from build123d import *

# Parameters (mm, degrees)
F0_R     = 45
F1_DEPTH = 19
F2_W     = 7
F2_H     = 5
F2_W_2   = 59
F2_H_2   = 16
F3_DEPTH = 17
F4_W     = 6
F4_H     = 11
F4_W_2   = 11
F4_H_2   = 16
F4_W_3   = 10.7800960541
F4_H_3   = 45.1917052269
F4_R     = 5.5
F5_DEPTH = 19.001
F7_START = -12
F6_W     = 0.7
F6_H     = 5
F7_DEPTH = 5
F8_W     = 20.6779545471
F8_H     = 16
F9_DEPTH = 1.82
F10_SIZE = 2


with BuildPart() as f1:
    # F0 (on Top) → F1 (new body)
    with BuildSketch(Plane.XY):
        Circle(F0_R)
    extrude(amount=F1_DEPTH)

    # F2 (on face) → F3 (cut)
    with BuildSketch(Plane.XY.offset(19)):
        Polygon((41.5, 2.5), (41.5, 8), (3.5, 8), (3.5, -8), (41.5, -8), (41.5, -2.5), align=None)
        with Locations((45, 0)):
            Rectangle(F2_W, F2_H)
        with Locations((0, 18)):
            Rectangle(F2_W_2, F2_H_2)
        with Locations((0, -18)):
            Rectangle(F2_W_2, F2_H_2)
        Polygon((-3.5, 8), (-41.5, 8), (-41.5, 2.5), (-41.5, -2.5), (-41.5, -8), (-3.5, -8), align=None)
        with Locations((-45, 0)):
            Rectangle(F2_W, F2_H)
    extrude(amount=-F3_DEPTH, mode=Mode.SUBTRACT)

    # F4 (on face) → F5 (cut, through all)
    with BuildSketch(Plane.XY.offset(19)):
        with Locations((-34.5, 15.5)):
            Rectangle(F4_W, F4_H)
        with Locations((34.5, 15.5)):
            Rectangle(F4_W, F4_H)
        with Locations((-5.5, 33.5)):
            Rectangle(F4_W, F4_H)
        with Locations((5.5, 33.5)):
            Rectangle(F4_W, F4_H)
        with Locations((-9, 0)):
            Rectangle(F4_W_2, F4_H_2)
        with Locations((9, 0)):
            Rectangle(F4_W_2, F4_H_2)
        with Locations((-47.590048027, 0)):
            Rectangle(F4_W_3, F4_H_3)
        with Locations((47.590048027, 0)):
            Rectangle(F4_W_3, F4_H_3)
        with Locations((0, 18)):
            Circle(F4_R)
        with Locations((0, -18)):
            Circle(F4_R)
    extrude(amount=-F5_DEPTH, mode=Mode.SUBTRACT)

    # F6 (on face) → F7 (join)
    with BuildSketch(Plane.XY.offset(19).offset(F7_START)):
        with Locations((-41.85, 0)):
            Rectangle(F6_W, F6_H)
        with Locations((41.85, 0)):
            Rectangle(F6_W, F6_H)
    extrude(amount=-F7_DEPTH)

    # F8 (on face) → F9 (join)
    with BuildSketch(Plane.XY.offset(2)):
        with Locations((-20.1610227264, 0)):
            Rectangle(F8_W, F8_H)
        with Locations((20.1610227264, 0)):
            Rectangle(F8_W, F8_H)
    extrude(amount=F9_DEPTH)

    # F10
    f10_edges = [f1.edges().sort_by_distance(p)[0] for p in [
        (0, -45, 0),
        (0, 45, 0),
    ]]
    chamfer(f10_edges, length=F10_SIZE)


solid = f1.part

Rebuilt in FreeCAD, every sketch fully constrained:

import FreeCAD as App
import Part
import Sketcher
from FreeCAD import Vector


def edges_at(feature, points):
    """Names of the edges that pass closest to the given points."""
    edges = feature.Shape.Edges
    near = lambda p: min(range(len(edges)), key=lambda i: edges[i].distToShape(Part.Vertex(*p))[0])
    return sorted({f"Edge{near(p) + 1}" for p in points})


def add_polygon(sketch, points):
    """Adds a closed chain of lines whose ends are joined by coincident constraints."""
    first, n = sketch.GeometryCount, len(points)
    for a, b in zip(points, points[1:] + points[:1]):
        sketch.addGeometry(Part.LineSegment(App.Vector(*a, 0), App.Vector(*b, 0)), False)
    for i in range(n):
        sketch.addConstraint(Sketcher.Constraint("Coincident", first + i, 2, first + (i + 1) % n, 1))

doc = App.newDocument("Part")
body = doc.addObject("PartDesign::Body", "Body")

# Sketch on XY plane
sketch1 = doc.addObject("Sketcher::SketchObject", "Sketch")
body.addObject(sketch1)
sketch1.AttachmentSupport = (doc.XY_Plane, [""])
sketch1.MapMode = "FlatFace"
sketch1.addGeometry(Part.Circle(Vector(0, 0, 0), Vector(0, 0, 1), 45), False)
sketch1.addConstraint(Sketcher.Constraint("Coincident", 0, 3, -1, 1))
sketch1.addConstraint(Sketcher.Constraint("Diameter", 0, 90.0))
pad1 = doc.addObject("PartDesign::Pad", "Pad")
body.addObject(pad1)
pad1.Profile = sketch1
pad1.Length = 19

# Sketch on XY plane
sketch2 = doc.addObject("Sketcher::SketchObject", "Sketch001")
body.addObject(sketch2)
sketch2.AttachmentSupport = (doc.XY_Plane, [""])
sketch2.MapMode = "FlatFace"
sketch2.AttachmentOffset = App.Placement(Vector(0, 0, 19), App.Rotation())
add_polygon(sketch2, [(41.5, 8), (3.5, 8), (3.5, -8), (41.5, -8), (41.5, -2.5), (48.5, -2.5), (48.5, 2.5), (41.5, 2.5)])  # lines 0-7
add_polygon(sketch2, [(-29.5, 26), (-29.5, 10), (29.5, 10), (29.5, 26)])  # lines 8-11
add_polygon(sketch2, [(-29.5, -10), (-29.5, -26), (29.5, -26), (29.5, -10)])  # lines 12-15
add_polygon(sketch2, [(-3.5, 8), (-41.5, 8), (-41.5, 2.5), (-48.5, 2.5), (-48.5, -2.5), (-41.5, -2.5), (-41.5, -8), (-3.5, -8)])  # lines 16-23
sketch2.addConstraint(Sketcher.Constraint("Horizontal", 0))
sketch2.addConstraint(Sketcher.Constraint("Vertical", 1))
sketch2.addConstraint(Sketcher.Constraint("Horizontal", 2))
sketch2.addConstraint(Sketcher.Constraint("Vertical", 3))
sketch2.addConstraint(Sketcher.Constraint("Horizontal", 4))
sketch2.addConstraint(Sketcher.Constraint("Vertical", 5))
sketch2.addConstraint(Sketcher.Constraint("Horizontal", 6))
sketch2.addConstraint(Sketcher.Constraint("Vertical", 7))
sketch2.addConstraint(Sketcher.Constraint("Vertical", 8))
sketch2.addConstraint(Sketcher.Constraint("Horizontal", 9))
sketch2.addConstraint(Sketcher.Constraint("Vertical", 10))
sketch2.addConstraint(Sketcher.Constraint("Horizontal", 11))
sketch2.addConstraint(Sketcher.Constraint("Vertical", 12))
sketch2.addConstraint(Sketcher.Constraint("Horizontal", 13))
sketch2.addConstraint(Sketcher.Constraint("Vertical", 14))
sketch2.addConstraint(Sketcher.Constraint("Horizontal", 15))
sketch2.addConstraint(Sketcher.Constraint("Horizontal", 16))
sketch2.addConstraint(Sketcher.Constraint("Vertical", 17))
sketch2.addConstraint(Sketcher.Constraint("Horizontal", 18))
sketch2.addConstraint(Sketcher.Constraint("Vertical", 19))
sketch2.addConstraint(Sketcher.Constraint("Horizontal", 20))
sketch2.addConstraint(Sketcher.Constraint("Vertical", 21))
sketch2.addConstraint(Sketcher.Constraint("Horizontal", 22))
sketch2.addConstraint(Sketcher.Constraint("Vertical", 23))
sketch2.addConstraint(Sketcher.Constraint("Symmetric", 10, 2, 12, 2, -1, 1))
sketch2.addConstraint(Sketcher.Constraint("Symmetric", 8, 2, 14, 2, -1, 1))
sketch2.addConstraint(Sketcher.Constraint("Symmetric", 2, 2, 16, 2, -1, 1))
sketch2.addConstraint(Sketcher.Constraint("Symmetric", 4, 2, 18, 2, -1, 1))
sketch2.addConstraint(Sketcher.Constraint("Symmetric", 6, 2, 20, 2, -1, 1))
sketch2.addConstraint(Sketcher.Constraint("Symmetric", 0, 2, 22, 2, -1, 1))
sketch2.addConstraint(Sketcher.Constraint("Symmetric", 7, 2, 16, 2, -2))
sketch2.addConstraint(Sketcher.Constraint("Horizontal", 6, 2, 17, 2))
sketch2.addConstraint(Sketcher.Constraint("Vertical", 11, 2, 12, 2))
sketch2.addConstraint(Sketcher.Constraint("Equal", 1, 8))
sketch2.addConstraint(Sketcher.Constraint("DistanceX", 0, 2, 0, 1, 38.0))
sketch2.addConstraint(Sketcher.Constraint("DistanceX", 4, 1, 4, 2, 7.0))
sketch2.addConstraint(Sketcher.Constraint("DistanceX", 9, 1, 9, 2, 59.0))
sketch2.addConstraint(Sketcher.Constraint("DistanceY", 1, 2, 1, 1, 16.0))
sketch2.addConstraint(Sketcher.Constraint("DistanceY", 5, 1, 5, 2, 5.0))
sketch2.addConstraint(Sketcher.Constraint("DistanceY", -1, 1, 8, 2, 10.0))
sketch2.addConstraint(Sketcher.Constraint("DistanceX", 8, 2, 0, 2, 33.0))
pocket1 = doc.addObject("PartDesign::Pocket", "Pocket")
body.addObject(pocket1)
pocket1.Profile = sketch2
pocket1.Length = 17

# Sketch on XY plane
sketch3 = doc.addObject("Sketcher::SketchObject", "Sketch002")
body.addObject(sketch3)
sketch3.AttachmentSupport = (doc.XY_Plane, [""])
sketch3.MapMode = "FlatFace"
sketch3.AttachmentOffset = App.Placement(Vector(0, 0, 19), App.Rotation())
add_polygon(sketch3, [(-37.5, 21), (-37.5, 10), (-31.5, 10), (-31.5, 21)])  # lines 0-3
add_polygon(sketch3, [(31.5, 21), (31.5, 10), (37.5, 10), (37.5, 21)])  # lines 4-7
add_polygon(sketch3, [(-8.5, 39), (-8.5, 28), (-2.5, 28), (-2.5, 39)])  # lines 8-11
add_polygon(sketch3, [(2.5, 39), (2.5, 28), (8.5, 28), (8.5, 39)])  # lines 12-15
add_polygon(sketch3, [(-14.5, 8), (-14.5, -8), (-3.5, -8), (-3.5, 8)])  # lines 16-19
add_polygon(sketch3, [(3.5, 8), (3.5, -8), (14.5, -8), (14.5, 8)])  # lines 20-23
add_polygon(sketch3, [(-52.980096, 22.595853), (-52.980096, -22.595853), (-42.2, -22.595853), (-42.2, 22.595853)])  # lines 24-27
add_polygon(sketch3, [(42.2, 22.595853), (42.2, -22.595853), (52.980096, -22.595853), (52.980096, 22.595853)])  # lines 28-31
sketch3.addGeometry(Part.Circle(Vector(0, 18, 0), Vector(0, 0, 1), 5.5), False)  # 32
sketch3.addGeometry(Part.Circle(Vector(0, -18, 0), Vector(0, 0, 1), 5.5), False)  # 33
sketch3.addConstraint(Sketcher.Constraint("Vertical", 0))
sketch3.addConstraint(Sketcher.Constraint("Horizontal", 1))
sketch3.addConstraint(Sketcher.Constraint("Vertical", 2))
sketch3.addConstraint(Sketcher.Constraint("Horizontal", 3))
sketch3.addConstraint(Sketcher.Constraint("Vertical", 4))
sketch3.addConstraint(Sketcher.Constraint("Horizontal", 5))
sketch3.addConstraint(Sketcher.Constraint("Vertical", 6))
sketch3.addConstraint(Sketcher.Constraint("Horizontal", 7))
sketch3.addConstraint(Sketcher.Constraint("Vertical", 8))
sketch3.addConstraint(Sketcher.Constraint("Horizontal", 9))
sketch3.addConstraint(Sketcher.Constraint("Vertical", 10))
sketch3.addConstraint(Sketcher.Constraint("Horizontal", 11))
sketch3.addConstraint(Sketcher.Constraint("Vertical", 12))
sketch3.addConstraint(Sketcher.Constraint("Horizontal", 13))
sketch3.addConstraint(Sketcher.Constraint("Vertical", 14))
sketch3.addConstraint(Sketcher.Constraint("Horizontal", 15))
sketch3.addConstraint(Sketcher.Constraint("Vertical", 16))
sketch3.addConstraint(Sketcher.Constraint("Horizontal", 17))
sketch3.addConstraint(Sketcher.Constraint("Vertical", 18))
sketch3.addConstraint(Sketcher.Constraint("Horizontal", 19))
sketch3.addConstraint(Sketcher.Constraint("Vertical", 20))
sketch3.addConstraint(Sketcher.Constraint("Horizontal", 21))
sketch3.addConstraint(Sketcher.Constraint("Vertical", 22))
sketch3.addConstraint(Sketcher.Constraint("Horizontal", 23))
sketch3.addConstraint(Sketcher.Constraint("Vertical", 24))
sketch3.addConstraint(Sketcher.Constraint("Horizontal", 25))
sketch3.addConstraint(Sketcher.Constraint("Vertical", 26))
sketch3.addConstraint(Sketcher.Constraint("Horizontal", 27))
sketch3.addConstraint(Sketcher.Constraint("Vertical", 28))
sketch3.addConstraint(Sketcher.Constraint("Horizontal", 29))
sketch3.addConstraint(Sketcher.Constraint("Vertical", 30))
sketch3.addConstraint(Sketcher.Constraint("Horizontal", 31))
sketch3.addConstraint(Sketcher.Constraint("Equal", 32, 33))
sketch3.addConstraint(Sketcher.Constraint("Symmetric", 32, 3, 33, 3, -1, 1))
sketch3.addConstraint(Sketcher.Constraint("Symmetric", 18, 2, 20, 2, -1, 1))
sketch3.addConstraint(Sketcher.Constraint("Symmetric", 16, 2, 22, 2, -1, 1))
sketch3.addConstraint(Sketcher.Constraint("Symmetric", 26, 2, 28, 2, -1, 1))
sketch3.addConstraint(Sketcher.Constraint("Symmetric", 24, 2, 30, 2, -1, 1))
sketch3.addConstraint(Sketcher.Constraint("Symmetric", 1, 2, 4, 2, -2))
sketch3.addConstraint(Sketcher.Constraint("Symmetric", 3, 2, 6, 2, -2))
sketch3.addConstraint(Sketcher.Constraint("Symmetric", 9, 2, 12, 2, -2))
sketch3.addConstraint(Sketcher.Constraint("Symmetric", 11, 2, 14, 2, -2))
sketch3.addConstraint(Sketcher.Constraint("PointOnObject", 32, 3, -2))
sketch3.addConstraint(Sketcher.Constraint("Horizontal", 17, 2, 20, 2))
sketch3.addConstraint(Sketcher.Constraint("Horizontal", 25, 2, 28, 2))
sketch3.addConstraint(Sketcher.Constraint("Equal", 7, 9))
sketch3.addConstraint(Sketcher.Constraint("Equal", 23, 0))
sketch3.addConstraint(Sketcher.Constraint("Equal", 6, 8))
sketch3.addConstraint(Sketcher.Constraint("Diameter", 32, 11.0))
sketch3.addConstraint(Sketcher.Constraint("DistanceX", 1, 1, 1, 2, 6.0))
sketch3.addConstraint(Sketcher.Constraint("DistanceX", 17, 1, 17, 2, 11.0))
sketch3.addConstraint(Sketcher.Constraint("DistanceY", 16, 2, 16, 1, 16.0))
sketch3.addConstraint(Sketcher.Constraint("DistanceY", -1, 1, 32, 3, 18.0))
sketch3.addConstraint(Sketcher.Constraint("DistanceY", -1, 1, 0, 2, 10.0))
sketch3.addConstraint(Sketcher.Constraint("DistanceY", -1, 1, 8, 2, 28.0))
sketch3.addConstraint(Sketcher.Constraint("DistanceX", 1, 2, 4, 2, 63.0))
sketch3.addConstraint(Sketcher.Constraint("DistanceX", 2, 2, 8, 2, 23.0))
sketch3.addConstraint(Sketcher.Constraint("DistanceX", 1, 2, 16, 2, 17.0))
sketch3.addConstraint(Sketcher.Constraint("DistanceX", 25, 2, -1, 1, 42.2))
sketch3.addConstraint(Sketcher.Constraint("DistanceX", 25, 1, 25, 2, 10.780096))
sketch3.addConstraint(Sketcher.Constraint("DistanceY", 24, 2, 24, 1, 45.191705))
pocket2 = doc.addObject("PartDesign::Pocket", "Pocket001")
body.addObject(pocket2)
pocket2.Profile = sketch3
pocket2.Type = "ThroughAll"

# Sketch on XY plane
sketch4 = doc.addObject("Sketcher::SketchObject", "Sketch003")
body.addObject(sketch4)
sketch4.AttachmentSupport = (doc.XY_Plane, [""])
sketch4.MapMode = "FlatFace"
sketch4.AttachmentOffset = App.Placement(Vector(0, 0, 7), App.Rotation())
add_polygon(sketch4, [(-42.2, 2.5), (-42.2, -2.5), (-41.5, -2.5), (-41.5, 2.5)])  # lines 0-3
add_polygon(sketch4, [(41.5, 2.5), (41.5, -2.5), (42.2, -2.5), (42.2, 2.5)])  # lines 4-7
sketch4.addConstraint(Sketcher.Constraint("Vertical", 0))
sketch4.addConstraint(Sketcher.Constraint("Horizontal", 1))
sketch4.addConstraint(Sketcher.Constraint("Vertical", 2))
sketch4.addConstraint(Sketcher.Constraint("Horizontal", 3))
sketch4.addConstraint(Sketcher.Constraint("Vertical", 4))
sketch4.addConstraint(Sketcher.Constraint("Horizontal", 5))
sketch4.addConstraint(Sketcher.Constraint("Vertical", 6))
sketch4.addConstraint(Sketcher.Constraint("Horizontal", 7))
sketch4.addConstraint(Sketcher.Constraint("Symmetric", 2, 2, 4, 2, -1, 1))
sketch4.addConstraint(Sketcher.Constraint("Symmetric", 0, 2, 6, 2, -1, 1))
sketch4.addConstraint(Sketcher.Constraint("Horizontal", 1, 2, 4, 2))
sketch4.addConstraint(Sketcher.Constraint("DistanceY", 0, 2, 0, 1, 5.0))
sketch4.addConstraint(Sketcher.Constraint("DistanceX", 1, 1, 1, 2, 0.7))
sketch4.addConstraint(Sketcher.Constraint("DistanceX", 1, 2, 4, 2, 83.0))
pad2 = doc.addObject("PartDesign::Pad", "Pad001")
body.addObject(pad2)
pad2.Profile = sketch4
pad2.Length = 5
pad2.Reversed = True

# Sketch on XY plane
sketch5 = doc.addObject("Sketcher::SketchObject", "Sketch004")
body.addObject(sketch5)
sketch5.AttachmentSupport = (doc.XY_Plane, [""])
sketch5.MapMode = "FlatFace"
sketch5.AttachmentOffset = App.Placement(Vector(0, 0, 2), App.Rotation())
add_polygon(sketch5, [(-30.5, 8), (-30.5, -8), (-9.822045, -8), (-9.822045, 8)])  # lines 0-3
add_polygon(sketch5, [(9.822045, 8), (9.822045, -8), (30.5, -8), (30.5, 8)])  # lines 4-7
sketch5.addConstraint(Sketcher.Constraint("Vertical", 0))
sketch5.addConstraint(Sketcher.Constraint("Horizontal", 1))
sketch5.addConstraint(Sketcher.Constraint("Vertical", 2))
sketch5.addConstraint(Sketcher.Constraint("Horizontal", 3))
sketch5.addConstraint(Sketcher.Constraint("Vertical", 4))
sketch5.addConstraint(Sketcher.Constraint("Horizontal", 5))
sketch5.addConstraint(Sketcher.Constraint("Vertical", 6))
sketch5.addConstraint(Sketcher.Constraint("Horizontal", 7))
sketch5.addConstraint(Sketcher.Constraint("Symmetric", 2, 2, 4, 2, -1, 1))
sketch5.addConstraint(Sketcher.Constraint("Symmetric", 0, 2, 6, 2, -1, 1))
sketch5.addConstraint(Sketcher.Constraint("Horizontal", 1, 2, 4, 2))
sketch5.addConstraint(Sketcher.Constraint("DistanceY", 0, 2, 0, 1, 16.0))
sketch5.addConstraint(Sketcher.Constraint("DistanceX", 0, 2, 5, 2, 61.0))
sketch5.addConstraint(Sketcher.Constraint("DistanceX", 1, 1, 1, 2, 20.677955))
pad3 = doc.addObject("PartDesign::Pad", "Pad002")
body.addObject(pad3)
pad3.Profile = sketch5
pad3.Length = 1.82
doc.recompute()

chamfer = doc.addObject("PartDesign::Chamfer", "Chamfer")
body.addObject(chamfer)
chamfer.Base = (pad3, edges_at(pad3, [(0, -45, 0), (0, 45, 0)]))
chamfer.Size = 2

doc.recompute()
